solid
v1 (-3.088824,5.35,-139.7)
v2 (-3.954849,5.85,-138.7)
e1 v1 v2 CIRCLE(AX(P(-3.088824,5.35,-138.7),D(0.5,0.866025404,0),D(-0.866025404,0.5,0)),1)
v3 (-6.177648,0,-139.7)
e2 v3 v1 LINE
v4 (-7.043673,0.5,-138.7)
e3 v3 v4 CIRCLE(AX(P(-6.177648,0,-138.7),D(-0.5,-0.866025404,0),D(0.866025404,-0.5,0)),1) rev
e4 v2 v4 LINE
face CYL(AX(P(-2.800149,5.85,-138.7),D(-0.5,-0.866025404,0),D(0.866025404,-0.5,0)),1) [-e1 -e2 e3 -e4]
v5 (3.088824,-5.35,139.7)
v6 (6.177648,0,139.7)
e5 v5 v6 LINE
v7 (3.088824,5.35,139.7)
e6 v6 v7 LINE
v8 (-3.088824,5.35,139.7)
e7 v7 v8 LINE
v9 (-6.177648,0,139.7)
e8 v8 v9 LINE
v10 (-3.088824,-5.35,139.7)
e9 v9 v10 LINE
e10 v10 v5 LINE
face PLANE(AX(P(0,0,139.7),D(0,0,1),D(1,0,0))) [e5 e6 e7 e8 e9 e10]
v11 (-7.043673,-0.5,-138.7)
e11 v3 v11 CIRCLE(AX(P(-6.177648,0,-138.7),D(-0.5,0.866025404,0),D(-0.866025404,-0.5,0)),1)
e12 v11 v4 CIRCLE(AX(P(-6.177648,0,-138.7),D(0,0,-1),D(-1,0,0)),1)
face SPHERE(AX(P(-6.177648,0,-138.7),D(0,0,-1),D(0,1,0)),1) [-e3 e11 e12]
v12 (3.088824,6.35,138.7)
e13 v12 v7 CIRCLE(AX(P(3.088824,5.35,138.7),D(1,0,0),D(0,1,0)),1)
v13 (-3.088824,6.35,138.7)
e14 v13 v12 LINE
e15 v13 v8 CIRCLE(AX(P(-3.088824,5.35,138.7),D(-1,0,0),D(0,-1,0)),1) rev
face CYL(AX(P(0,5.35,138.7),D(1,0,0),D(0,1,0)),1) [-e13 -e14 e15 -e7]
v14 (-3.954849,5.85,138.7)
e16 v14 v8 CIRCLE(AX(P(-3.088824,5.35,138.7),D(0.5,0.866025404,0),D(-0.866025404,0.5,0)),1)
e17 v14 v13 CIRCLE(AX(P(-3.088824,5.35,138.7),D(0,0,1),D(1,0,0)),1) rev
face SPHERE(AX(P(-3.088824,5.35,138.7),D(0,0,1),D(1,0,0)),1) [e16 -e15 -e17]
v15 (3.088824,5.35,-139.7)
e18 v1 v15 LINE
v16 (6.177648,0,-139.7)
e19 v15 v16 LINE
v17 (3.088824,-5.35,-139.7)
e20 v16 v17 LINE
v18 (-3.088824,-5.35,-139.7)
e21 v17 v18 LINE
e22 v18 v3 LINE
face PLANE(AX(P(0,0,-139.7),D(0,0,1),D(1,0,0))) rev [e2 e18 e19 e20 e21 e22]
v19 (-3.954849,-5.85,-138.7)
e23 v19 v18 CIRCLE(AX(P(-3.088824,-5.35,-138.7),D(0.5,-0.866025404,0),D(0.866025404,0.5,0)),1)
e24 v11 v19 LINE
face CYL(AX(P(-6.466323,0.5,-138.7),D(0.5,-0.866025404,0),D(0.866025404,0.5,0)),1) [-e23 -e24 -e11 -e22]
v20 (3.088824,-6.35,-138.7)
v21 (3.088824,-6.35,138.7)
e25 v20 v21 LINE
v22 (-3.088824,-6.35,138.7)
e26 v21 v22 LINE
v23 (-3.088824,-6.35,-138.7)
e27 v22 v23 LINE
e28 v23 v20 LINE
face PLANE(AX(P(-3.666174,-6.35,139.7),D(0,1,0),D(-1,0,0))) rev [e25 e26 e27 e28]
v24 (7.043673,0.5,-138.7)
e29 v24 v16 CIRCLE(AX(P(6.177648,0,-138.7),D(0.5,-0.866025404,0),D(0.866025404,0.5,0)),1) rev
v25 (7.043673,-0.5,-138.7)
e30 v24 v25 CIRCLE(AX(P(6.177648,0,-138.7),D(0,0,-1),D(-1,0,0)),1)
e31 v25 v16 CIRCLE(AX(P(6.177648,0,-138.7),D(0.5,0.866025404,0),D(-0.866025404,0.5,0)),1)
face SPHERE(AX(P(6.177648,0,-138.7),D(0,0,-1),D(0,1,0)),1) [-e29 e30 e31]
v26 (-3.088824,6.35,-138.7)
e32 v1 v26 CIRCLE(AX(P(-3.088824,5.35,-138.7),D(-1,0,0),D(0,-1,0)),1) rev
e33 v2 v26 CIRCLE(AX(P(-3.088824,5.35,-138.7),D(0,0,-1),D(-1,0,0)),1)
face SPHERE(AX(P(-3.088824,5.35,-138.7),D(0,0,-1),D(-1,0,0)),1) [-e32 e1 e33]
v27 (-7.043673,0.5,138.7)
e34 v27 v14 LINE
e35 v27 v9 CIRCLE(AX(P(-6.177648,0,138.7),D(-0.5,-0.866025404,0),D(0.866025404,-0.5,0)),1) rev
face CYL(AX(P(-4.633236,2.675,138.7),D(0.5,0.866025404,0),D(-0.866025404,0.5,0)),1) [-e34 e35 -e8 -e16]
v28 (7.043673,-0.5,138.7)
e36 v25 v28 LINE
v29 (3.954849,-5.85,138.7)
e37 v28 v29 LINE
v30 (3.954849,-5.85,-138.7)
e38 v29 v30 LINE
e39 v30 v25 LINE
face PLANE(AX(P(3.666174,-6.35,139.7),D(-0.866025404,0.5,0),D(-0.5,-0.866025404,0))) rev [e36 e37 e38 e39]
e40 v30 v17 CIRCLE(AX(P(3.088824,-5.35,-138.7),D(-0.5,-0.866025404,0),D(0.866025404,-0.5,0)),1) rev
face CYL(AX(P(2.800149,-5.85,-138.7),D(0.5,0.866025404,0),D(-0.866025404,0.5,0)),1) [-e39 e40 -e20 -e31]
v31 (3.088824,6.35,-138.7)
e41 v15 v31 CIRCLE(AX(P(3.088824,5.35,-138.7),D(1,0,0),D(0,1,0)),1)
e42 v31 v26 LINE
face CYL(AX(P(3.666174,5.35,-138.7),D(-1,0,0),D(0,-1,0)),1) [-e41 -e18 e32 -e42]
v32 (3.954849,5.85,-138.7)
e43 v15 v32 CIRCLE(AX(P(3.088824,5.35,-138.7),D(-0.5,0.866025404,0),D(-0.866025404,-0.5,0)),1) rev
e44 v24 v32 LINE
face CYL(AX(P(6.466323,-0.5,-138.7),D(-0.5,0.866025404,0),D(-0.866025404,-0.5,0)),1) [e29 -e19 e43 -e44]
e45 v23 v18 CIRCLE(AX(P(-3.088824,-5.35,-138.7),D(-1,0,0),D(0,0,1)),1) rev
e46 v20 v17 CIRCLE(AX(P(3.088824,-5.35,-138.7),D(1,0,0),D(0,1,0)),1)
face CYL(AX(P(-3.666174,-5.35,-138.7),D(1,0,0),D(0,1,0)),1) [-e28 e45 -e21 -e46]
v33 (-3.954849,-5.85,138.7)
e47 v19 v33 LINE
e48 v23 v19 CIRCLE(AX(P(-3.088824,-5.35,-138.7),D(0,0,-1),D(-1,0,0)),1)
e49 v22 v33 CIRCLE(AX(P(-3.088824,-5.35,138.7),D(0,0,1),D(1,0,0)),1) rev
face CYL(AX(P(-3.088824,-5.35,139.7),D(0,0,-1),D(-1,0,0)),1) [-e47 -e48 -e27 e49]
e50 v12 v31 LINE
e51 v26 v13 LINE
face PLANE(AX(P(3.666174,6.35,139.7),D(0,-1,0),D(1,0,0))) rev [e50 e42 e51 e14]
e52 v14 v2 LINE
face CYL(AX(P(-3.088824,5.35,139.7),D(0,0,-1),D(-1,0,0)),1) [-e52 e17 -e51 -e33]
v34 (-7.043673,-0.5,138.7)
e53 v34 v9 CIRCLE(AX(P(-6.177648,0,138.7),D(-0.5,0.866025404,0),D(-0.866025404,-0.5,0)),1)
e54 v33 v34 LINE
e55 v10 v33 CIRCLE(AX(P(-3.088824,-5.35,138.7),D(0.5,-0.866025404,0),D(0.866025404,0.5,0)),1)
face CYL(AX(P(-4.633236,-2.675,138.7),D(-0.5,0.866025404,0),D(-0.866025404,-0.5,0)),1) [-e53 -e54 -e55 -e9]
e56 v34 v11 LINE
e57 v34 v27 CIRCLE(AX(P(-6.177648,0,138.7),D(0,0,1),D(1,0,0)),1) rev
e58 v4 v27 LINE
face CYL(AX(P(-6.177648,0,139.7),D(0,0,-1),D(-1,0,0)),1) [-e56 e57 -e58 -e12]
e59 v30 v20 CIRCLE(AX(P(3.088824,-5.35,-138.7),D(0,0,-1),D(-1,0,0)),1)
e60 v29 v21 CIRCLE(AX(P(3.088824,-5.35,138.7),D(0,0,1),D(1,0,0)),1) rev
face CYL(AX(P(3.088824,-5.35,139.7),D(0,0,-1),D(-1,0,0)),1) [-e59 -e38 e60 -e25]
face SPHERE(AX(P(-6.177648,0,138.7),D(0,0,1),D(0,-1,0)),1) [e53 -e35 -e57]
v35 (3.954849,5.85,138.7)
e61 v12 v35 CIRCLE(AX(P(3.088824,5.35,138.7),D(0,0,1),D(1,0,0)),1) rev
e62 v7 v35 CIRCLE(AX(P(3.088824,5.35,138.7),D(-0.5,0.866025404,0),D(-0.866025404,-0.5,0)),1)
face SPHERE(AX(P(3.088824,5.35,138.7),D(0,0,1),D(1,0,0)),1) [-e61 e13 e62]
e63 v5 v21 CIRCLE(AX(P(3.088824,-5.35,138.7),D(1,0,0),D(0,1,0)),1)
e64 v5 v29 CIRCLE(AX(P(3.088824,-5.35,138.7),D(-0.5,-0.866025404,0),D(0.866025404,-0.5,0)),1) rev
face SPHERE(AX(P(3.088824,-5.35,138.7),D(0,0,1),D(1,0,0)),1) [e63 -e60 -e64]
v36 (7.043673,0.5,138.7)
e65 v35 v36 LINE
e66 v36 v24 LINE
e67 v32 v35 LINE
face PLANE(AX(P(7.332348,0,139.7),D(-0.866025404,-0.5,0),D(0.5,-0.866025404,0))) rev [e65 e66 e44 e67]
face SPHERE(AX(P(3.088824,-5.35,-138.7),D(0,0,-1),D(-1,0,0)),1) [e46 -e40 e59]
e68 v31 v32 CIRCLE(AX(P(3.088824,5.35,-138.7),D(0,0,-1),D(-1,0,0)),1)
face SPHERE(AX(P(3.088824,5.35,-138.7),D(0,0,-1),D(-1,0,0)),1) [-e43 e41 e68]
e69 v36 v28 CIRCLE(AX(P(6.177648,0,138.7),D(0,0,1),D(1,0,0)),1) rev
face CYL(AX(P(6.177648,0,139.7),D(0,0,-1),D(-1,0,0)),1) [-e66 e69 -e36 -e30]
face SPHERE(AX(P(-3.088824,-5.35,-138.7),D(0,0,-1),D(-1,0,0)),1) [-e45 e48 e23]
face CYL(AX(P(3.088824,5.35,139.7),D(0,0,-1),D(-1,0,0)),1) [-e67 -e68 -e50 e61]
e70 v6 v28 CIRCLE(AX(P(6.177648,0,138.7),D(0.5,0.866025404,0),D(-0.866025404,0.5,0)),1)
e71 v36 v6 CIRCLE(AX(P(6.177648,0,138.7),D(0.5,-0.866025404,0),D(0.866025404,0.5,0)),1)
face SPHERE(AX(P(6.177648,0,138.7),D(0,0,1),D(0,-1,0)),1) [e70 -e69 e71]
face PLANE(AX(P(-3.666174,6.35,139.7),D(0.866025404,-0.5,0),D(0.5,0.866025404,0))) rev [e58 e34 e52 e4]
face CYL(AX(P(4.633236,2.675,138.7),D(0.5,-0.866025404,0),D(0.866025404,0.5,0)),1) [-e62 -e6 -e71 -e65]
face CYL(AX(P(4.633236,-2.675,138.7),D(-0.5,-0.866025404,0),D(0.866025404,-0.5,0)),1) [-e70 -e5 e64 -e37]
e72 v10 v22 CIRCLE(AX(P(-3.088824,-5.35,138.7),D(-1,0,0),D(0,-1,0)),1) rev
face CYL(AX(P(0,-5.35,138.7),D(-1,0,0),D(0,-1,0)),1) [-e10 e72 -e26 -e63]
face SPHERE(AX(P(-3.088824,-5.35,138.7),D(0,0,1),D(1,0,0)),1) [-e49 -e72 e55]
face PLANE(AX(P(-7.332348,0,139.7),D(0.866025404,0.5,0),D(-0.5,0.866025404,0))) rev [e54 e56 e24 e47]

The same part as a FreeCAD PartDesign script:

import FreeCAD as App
import Part
import Sketcher

V = App.Vector
Q = App.Units.Quantity


def add_polygon(sketch, points):
    """Adds a closed chain of lines whose ends are joined by coincident constraints."""
    first, n = sketch.GeometryCount, len(points)
    for a, b in zip(points, points[1:] + points[:1]):
        sketch.addGeometry(Part.LineSegment(App.Vector(*a, 0), App.Vector(*b, 0)), False)
    for i in range(n):
        sketch.addConstraint(Sketcher.Constraint("Coincident", first + i, 2, first + (i + 1) % n, 1))

doc = App.newDocument("Part")
body = doc.addObject("PartDesign::Body", "Body")

sketch1 = doc.addObject("Sketcher::SketchObject", "Sketch")
body.addObject(sketch1)
sketch1.AttachmentSupport = (doc.XY_Plane, [""])
sketch1.MapMode = "FlatFace"
add_polygon(sketch1, [(7.332348, 0), (3.666174, 6.35), (-3.666174, 6.35), (-7.332348, 0), (-3.666174, -6.35), (3.666174, -6.35)])
sketch1.addConstraint([
    Sketcher.Constraint("Horizontal", 1),
    Sketcher.Constraint("Horizontal", 4),
    Sketcher.Constraint("Symmetric", 0, 2, 3, 2, -1, 1),
    Sketcher.Constraint("Symmetric", 2, 2, 5, 2, -1, 1),
    Sketcher.Constraint("PointOnObject", 2, 2, -1),
    Sketcher.Constraint("Parallel", 2, 5),
    Sketcher.Constraint("Vertical", 1, 2, 3, 2),
    Sketcher.Constraint("Angle", 0, Q("120 deg")),
    Sketcher.Constraint("DistanceY", 3, 2, 1, 2, Q("12.7 mm")),
    Sketcher.Constraint("DistanceX", 1, 2, 1, 1, Q("7.332348 mm")),
])
pad1 = doc.addObject("PartDesign::Pad", "Pad")
body.addObject(pad1)
pad1.Profile = sketch1
pad1.Length = 279.4
pad1.Midplane = True
doc.recompute()

fillet = doc.addObject("PartDesign::Fillet", "Fillet")
body.addObject(fillet)
fillet.Base = (pad1, ["Edge1"])
fillet.UseAllEdges = True
fillet.Radius = 1

doc.recompute()
